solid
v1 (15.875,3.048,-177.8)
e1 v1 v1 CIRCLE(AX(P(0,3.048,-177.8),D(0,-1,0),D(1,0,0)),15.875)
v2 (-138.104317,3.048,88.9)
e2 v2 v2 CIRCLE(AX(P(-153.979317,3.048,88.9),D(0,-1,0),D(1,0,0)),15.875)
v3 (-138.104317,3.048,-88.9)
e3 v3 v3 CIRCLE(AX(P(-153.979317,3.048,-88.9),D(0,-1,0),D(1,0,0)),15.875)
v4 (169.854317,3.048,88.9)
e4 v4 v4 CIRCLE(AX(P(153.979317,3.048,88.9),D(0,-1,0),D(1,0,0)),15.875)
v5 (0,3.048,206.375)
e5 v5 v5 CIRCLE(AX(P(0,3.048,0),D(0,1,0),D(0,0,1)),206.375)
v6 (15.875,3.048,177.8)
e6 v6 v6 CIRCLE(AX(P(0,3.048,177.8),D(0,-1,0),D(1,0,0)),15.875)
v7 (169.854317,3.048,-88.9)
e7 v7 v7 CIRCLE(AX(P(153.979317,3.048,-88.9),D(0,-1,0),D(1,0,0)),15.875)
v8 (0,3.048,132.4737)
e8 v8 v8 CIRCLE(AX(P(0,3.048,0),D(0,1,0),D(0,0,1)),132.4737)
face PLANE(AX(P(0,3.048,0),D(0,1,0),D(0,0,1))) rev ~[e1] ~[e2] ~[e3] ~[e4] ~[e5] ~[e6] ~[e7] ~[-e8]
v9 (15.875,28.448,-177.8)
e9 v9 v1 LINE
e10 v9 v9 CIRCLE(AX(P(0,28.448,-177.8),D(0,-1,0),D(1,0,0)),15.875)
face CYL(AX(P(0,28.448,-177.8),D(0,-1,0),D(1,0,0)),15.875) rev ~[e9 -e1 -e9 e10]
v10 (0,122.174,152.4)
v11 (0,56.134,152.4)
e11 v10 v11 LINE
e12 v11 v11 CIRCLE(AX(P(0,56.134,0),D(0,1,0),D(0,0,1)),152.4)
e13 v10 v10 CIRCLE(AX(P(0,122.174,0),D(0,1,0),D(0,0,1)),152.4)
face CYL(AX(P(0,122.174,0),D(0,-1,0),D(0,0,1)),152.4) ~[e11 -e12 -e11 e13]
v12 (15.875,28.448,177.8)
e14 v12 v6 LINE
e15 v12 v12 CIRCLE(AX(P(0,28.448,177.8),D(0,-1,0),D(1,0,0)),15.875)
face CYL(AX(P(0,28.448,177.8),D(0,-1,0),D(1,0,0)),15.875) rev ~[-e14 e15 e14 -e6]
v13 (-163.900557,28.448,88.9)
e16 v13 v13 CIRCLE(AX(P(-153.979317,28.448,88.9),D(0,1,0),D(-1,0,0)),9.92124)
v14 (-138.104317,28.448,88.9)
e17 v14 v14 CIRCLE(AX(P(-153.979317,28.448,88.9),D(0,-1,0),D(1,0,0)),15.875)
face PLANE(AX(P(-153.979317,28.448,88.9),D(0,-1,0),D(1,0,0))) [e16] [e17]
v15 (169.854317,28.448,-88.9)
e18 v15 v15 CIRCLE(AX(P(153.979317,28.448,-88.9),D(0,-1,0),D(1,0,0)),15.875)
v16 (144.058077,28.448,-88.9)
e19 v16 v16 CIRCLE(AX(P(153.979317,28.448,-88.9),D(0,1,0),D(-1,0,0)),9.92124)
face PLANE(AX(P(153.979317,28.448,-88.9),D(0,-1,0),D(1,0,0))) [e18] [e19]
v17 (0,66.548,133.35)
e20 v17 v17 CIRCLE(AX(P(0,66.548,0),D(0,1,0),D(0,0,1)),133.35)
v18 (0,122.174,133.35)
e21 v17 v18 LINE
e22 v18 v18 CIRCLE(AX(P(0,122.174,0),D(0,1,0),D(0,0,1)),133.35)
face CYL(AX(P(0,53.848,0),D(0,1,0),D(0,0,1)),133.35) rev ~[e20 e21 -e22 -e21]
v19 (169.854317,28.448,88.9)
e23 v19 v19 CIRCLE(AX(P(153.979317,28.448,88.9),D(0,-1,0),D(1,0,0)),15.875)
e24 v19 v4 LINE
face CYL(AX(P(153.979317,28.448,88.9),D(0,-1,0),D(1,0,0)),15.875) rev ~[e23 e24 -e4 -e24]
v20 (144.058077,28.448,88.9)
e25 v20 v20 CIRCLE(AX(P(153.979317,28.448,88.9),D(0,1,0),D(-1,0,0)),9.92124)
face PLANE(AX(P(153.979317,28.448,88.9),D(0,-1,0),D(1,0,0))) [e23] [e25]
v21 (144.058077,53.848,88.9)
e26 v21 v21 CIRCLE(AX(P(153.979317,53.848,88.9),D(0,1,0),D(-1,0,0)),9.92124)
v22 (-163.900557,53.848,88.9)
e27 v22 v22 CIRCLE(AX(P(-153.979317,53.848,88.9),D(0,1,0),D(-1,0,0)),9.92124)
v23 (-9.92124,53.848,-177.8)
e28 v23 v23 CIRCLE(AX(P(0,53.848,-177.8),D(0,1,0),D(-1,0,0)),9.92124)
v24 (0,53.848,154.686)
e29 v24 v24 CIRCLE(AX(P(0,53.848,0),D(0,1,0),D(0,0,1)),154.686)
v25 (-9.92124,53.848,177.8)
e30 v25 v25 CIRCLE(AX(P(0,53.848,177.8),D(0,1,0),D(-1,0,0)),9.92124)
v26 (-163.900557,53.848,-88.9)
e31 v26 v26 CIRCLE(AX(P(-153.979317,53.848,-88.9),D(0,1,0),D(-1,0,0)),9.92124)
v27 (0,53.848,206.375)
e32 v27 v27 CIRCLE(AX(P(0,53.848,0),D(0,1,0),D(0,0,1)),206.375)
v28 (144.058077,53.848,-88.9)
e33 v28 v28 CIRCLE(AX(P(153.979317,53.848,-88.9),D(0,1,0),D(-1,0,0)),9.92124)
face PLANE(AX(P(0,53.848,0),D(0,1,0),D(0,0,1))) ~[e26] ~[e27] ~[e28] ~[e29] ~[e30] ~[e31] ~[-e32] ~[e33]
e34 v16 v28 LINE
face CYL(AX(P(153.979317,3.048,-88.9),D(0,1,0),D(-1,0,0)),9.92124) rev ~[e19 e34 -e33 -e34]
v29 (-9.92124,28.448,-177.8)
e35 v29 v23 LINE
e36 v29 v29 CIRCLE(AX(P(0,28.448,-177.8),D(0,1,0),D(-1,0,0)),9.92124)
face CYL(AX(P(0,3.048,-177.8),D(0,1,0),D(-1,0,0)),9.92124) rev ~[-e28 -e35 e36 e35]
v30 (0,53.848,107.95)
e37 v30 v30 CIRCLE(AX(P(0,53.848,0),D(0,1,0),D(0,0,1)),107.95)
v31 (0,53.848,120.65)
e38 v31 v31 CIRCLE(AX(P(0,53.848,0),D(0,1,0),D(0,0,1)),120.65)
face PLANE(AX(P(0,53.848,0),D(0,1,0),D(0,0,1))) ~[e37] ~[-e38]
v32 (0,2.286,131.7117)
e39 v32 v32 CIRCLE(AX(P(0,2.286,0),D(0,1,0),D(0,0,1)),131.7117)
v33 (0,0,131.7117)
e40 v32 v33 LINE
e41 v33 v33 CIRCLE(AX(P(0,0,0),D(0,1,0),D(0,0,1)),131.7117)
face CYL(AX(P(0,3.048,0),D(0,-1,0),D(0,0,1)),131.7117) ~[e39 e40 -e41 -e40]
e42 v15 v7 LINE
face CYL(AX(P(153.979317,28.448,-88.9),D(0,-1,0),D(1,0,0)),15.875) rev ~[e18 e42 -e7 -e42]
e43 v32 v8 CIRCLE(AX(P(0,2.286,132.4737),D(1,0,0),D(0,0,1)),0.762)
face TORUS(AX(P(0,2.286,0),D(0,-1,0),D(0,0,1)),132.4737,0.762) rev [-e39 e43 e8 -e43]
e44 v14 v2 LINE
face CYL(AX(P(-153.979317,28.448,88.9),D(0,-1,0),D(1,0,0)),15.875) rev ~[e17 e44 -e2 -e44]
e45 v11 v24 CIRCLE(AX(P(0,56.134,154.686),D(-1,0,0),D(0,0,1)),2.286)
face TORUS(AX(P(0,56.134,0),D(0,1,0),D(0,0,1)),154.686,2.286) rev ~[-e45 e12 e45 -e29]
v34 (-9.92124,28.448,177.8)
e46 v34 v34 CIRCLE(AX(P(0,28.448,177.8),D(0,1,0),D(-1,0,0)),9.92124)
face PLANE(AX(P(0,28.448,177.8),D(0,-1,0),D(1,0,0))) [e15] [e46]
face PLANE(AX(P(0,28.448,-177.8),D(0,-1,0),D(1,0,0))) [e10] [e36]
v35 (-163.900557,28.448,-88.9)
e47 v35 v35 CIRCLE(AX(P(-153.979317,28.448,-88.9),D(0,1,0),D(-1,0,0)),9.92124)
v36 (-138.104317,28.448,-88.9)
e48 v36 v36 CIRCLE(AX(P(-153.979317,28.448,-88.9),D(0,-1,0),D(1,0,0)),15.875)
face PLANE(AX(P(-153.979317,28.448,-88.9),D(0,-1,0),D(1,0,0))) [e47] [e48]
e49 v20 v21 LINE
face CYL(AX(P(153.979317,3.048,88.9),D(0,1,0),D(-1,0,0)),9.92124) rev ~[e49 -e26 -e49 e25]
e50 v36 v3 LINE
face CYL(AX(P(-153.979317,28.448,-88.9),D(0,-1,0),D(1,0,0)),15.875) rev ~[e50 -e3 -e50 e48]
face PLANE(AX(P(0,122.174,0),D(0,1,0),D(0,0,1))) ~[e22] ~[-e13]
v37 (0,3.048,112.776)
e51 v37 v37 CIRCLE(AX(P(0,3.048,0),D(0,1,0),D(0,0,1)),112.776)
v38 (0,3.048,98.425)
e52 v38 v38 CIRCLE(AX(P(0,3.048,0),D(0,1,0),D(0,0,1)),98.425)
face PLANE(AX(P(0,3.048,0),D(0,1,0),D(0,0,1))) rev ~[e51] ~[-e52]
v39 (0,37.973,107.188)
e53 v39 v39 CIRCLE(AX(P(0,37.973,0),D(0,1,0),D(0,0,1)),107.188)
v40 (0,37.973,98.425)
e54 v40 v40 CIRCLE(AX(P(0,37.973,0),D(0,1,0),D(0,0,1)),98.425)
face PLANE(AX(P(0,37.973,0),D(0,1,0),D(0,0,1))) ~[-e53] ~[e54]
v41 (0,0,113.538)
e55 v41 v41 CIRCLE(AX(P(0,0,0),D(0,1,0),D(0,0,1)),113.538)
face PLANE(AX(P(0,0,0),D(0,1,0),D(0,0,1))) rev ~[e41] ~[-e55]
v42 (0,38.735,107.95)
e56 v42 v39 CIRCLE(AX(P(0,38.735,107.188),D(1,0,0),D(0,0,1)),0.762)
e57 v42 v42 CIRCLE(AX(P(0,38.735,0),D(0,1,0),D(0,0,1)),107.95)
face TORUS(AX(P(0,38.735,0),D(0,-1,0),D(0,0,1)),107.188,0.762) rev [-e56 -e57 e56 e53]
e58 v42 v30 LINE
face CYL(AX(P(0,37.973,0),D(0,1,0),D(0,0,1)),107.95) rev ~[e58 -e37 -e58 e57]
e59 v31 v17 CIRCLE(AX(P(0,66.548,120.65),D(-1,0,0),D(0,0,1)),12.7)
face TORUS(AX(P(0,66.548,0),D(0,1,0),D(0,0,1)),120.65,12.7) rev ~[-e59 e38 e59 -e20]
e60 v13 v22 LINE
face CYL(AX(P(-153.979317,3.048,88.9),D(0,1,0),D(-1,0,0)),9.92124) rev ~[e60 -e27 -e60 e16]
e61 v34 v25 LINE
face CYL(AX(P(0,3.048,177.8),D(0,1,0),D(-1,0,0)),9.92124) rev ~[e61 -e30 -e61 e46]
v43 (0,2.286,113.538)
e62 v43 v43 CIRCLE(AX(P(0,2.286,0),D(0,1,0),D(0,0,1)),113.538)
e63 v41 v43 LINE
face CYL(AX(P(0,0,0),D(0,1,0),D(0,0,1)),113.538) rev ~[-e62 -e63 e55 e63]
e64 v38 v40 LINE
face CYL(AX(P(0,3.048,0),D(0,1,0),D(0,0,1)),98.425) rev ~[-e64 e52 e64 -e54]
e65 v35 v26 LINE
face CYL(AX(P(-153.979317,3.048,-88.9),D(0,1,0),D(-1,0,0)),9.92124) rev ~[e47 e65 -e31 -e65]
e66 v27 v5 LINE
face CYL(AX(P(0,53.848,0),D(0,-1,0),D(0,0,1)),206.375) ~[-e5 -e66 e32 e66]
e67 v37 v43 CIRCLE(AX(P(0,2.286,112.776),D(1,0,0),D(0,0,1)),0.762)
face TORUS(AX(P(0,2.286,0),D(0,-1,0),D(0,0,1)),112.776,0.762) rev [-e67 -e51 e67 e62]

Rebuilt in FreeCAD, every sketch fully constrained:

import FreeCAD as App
import Part
import Sketcher
from FreeCAD import Vector
Q = App.Units.Quantity


def edges_at(feature, points):
    """Names of the edges that pass closest to the given points."""
    edges = feature.Shape.Edges
    near = lambda p: min(range(len(edges)), key=lambda i: edges[i].distToShape(Part.Vertex(*p))[0])
    return sorted({f"Edge{near(p) + 1}" for p in points})


def add_polygon(sketch, points):
    """Adds a closed chain of lines whose ends are joined by coincident constraints."""
    first, n = sketch.GeometryCount, len(points)
    for a, b in zip(points, points[1:] + points[:1]):
        sketch.addGeometry(Part.LineSegment(App.Vector(*a, 0), App.Vector(*b, 0)), False)
    for i in range(n):
        sketch.addConstraint(Sketcher.Constraint("Coincident", first + i, 2, first + (i + 1) % n, 1))

doc = App.newDocument("Part")
body = doc.addObject("PartDesign::Body", "Body")

# Sketch on YZ plane
sketch1 = body.newObject("Sketcher::SketchObject", "Sketch")
sketch1.AttachmentSupport = (doc.getObject("YZ_Plane"), [""])
sketch1.MapMode = "FlatFace"
add_polygon(sketch1, [(3, 131.7), (0, 131.7), (0, 113.5), (3, 113.5), (3, 98.4), (38, 98.4), (38, 108), (53.8, 108), (53.8, 133.3), (122.2, 133.3), (122.2, 152.4), (53.8, 152.4), (53.8, 206.4), (3, 206.4)])  # lines 0-13
sketch1.addConstraint([
    Sketcher.Constraint("Horizontal", 0),
    Sketcher.Constraint("Vertical", 1),
    Sketcher.Constraint("Horizontal", 2),
    Sketcher.Constraint("Vertical", 3),
    Sketcher.Constraint("Horizontal", 4),
    Sketcher.Constraint("Vertical", 5),
    Sketcher.Constraint("Horizontal", 6),
    Sketcher.Constraint("Vertical", 7),
    Sketcher.Constraint("Horizontal", 8),
    Sketcher.Constraint("Vertical", 9),
    Sketcher.Constraint("Horizontal", 10),
    Sketcher.Constraint("Vertical", 11),
    Sketcher.Constraint("Horizontal", 12),
    Sketcher.Constraint("Vertical", 13),
    Sketcher.Constraint("PointOnObject", 0, 2, -2),
    Sketcher.Constraint("Vertical", 7, 2, 10, 2),
    Sketcher.Constraint("Vertical", 3, 2, 12, 2),
    Sketcher.Constraint("DistanceX", 12, 2, 12, 1, Q("2 in")),
    Sketcher.Constraint("DistanceY", 7, 1, 7, 2, Q("1 in")),
    Sketcher.Constraint("DistanceY", -1, 1, 9, 2, Q("6 in")),
    Sketcher.Constraint("DistanceX", 0, 2, 0, 1, Q("0.12 in")),
    Sketcher.Constraint("DistanceX", 8, 1, 8, 2, Q("2.69 in")),
    Sketcher.Constraint("DistanceY", 9, 1, 9, 2, Q("0.75 in")),
    Sketcher.Constraint("DistanceX", 4, 1, 4, 2, Q("1.375 in")),
    Sketcher.Constraint("DistanceY", 3, 2, 3, 1, Q("0.595 in")),
    Sketcher.Constraint("DistanceY", 5, 1, 5, 2, Q("0.375 in")),
    Sketcher.Constraint("DistanceY", 11, 1, 11, 2, Q("2.125 in")),
    Sketcher.Constraint("DistanceY", 1, 2, 1, 1, Q("0.7155 in")),
])
revolution = body.newObject("PartDesign::Revolution", "Revolution")
revolution.Profile = sketch1
revolution.ReferenceAxis = (sketch1, ["H_Axis"])
revolution.Angle = 360
doc.recompute()

fillet = body.newObject("PartDesign::Fillet", "Fillet")
fillet.Base = (revolution, edges_at(revolution, [(0, 53.848, -133.35)]))
fillet.Radius = Q("0.5 in")
doc.recompute()

fillet2 = body.newObject("PartDesign::Fillet", "Fillet001")
fillet2.Base = (fillet, edges_at(fillet, [(0, 53.848, -152.4)]))
fillet2.Radius = Q("0.09 in")
doc.recompute()

fillet3 = body.newObject("PartDesign::Fillet", "Fillet002")
fillet3.Base = (fillet2, edges_at(fillet2, [(0, 37.973, -107.95)]))
fillet3.Radius = Q("0.03 in")
doc.recompute()

fillet4 = body.newObject("PartDesign::Fillet", "Fillet003")
fillet4.Base = (fillet3, edges_at(fillet3, [(0, 3.048, -131.712), (0, 3.048, -113.538)]))
fillet4.Radius = Q("0.03 in")

# Sketch on XZ plane
sketch2 = body.newObject("Sketcher::SketchObject", "Sketch001")
sketch2.AttachmentSupport = (doc.getObject("XZ_Plane"), [""])
sketch2.MapMode = "FlatFace"
sketch2.AttachmentOffset = App.Placement(Vector(0, 0, -0.12 * 25.4), App.Rotation())
sketch2.addGeometry([
    Part.Circle(Vector(0, 178, 0), Vector(0, 0, 1), 10),  # 0
    Part.Circle(Vector(154, 89, 0), Vector(0, 0, 1), 10),  # 1
    Part.Circle(Vector(154, -89, 0), Vector(0, 0, 1), 10),  # 2
    Part.Circle(Vector(0, -178, 0), Vector(0, 0, 1), 10),  # 3
    Part.Circle(Vector(-154, -89, 0), Vector(0, 0, 1), 10),  # 4
    Part.Circle(Vector(-154, 89, 0), Vector(0, 0, 1), 10),  # 5
], False)
sketch2.addConstraint([
    Sketcher.Constraint("Equal", 0, 1),
    Sketcher.Constraint("Equal", 1, 2),
    Sketcher.Constraint("Equal", 2, 3),
    Sketcher.Constraint("Equal", 3, 4),
    Sketcher.Constraint("Equal", 4, 5),
    Sketcher.Constraint("Symmetric", 0, 3, 3, 3, -1, 1),
    Sketcher.Constraint("Symmetric", 1, 3, 4, 3, -1, 1),
    Sketcher.Constraint("Symmetric", 2, 3, 5, 3, -1, 1),
    Sketcher.Constraint("Symmetric", 2, 3, 4, 3, -2),
    Sketcher.Constraint("PointOnObject", 0, 3, -2),
    Sketcher.Constraint("DistanceY", -1, 1, 0, 3, Q("7 in")),
    Sketcher.Constraint("DistanceY", 2, 3, 1, 3, Q("7 in")),
    Sketcher.Constraint("Diameter", 0, Q("0.7812 in")),
    Sketcher.Constraint("DistanceX", -1, 1, 1, 3, Q("153.979317 mm")),
])
doc.recompute()
hole = body.newObject("PartDesign::Hole", "Hole")
hole.Profile = sketch2
hole.ThreadType = "None"
hole.Diameter = Q("0.7812 in")
hole.DepthType = "ThroughAll"
hole.HoleCutType = "Counterbore"
hole.HoleCutDiameter = Q("1.25 in")
hole.HoleCutDepth = Q("1 in")

doc.recompute()
